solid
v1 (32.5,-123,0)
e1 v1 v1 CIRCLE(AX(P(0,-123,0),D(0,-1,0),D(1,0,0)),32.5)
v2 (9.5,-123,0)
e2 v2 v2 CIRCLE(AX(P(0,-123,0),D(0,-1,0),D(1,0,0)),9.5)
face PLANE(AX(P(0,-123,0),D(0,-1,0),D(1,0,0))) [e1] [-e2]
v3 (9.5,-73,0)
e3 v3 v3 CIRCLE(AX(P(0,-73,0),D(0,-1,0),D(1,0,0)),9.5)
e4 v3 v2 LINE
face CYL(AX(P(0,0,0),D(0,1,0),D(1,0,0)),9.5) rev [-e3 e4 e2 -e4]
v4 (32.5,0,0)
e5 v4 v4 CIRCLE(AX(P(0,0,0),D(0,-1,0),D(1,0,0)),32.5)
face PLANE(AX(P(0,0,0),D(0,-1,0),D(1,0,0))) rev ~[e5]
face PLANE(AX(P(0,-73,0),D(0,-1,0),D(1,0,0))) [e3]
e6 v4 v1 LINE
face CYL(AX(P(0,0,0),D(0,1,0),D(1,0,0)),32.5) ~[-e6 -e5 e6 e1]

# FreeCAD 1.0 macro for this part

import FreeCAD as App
import Part
import Sketcher

V = App.Vector
Q = App.Units.Quantity

doc = App.newDocument("Part")
params = doc.addObject("Spreadsheet::Sheet", "Params")
for row, (alias, value) in enumerate([
    ("sketch1_diameter", "65 mm"),
    ("sketch1_diameter2", "19 mm"),
    ("pad1_length", "123 mm"),
    ("sketch2_diameter", "19 mm"),
    ("pad2_length", "73 mm"),
], start=1):
    params.set(f"A{row}", alias)
    params.set(f"B{row}", "=" + value)
    params.setAlias(f"B{row}", alias)

body = doc.addObject("PartDesign::Body", "Body")

sketch1 = doc.addObject("Sketcher::SketchObject", "Sketch")
body.addObject(sketch1)
sketch1.AttachmentSupport = (doc.XZ_Plane, [""])
sketch1.MapMode = "FlatFace"
sketch1.addGeometry([
    Part.Circle(V(0, 0, 0), V(0, 0, 1), 32.5),
    Part.Circle(V(0, 0, 0), V(0, 0, 1), 9.5),
], False)
sketch1.addConstraint([
    Sketcher.Constraint("Coincident", 0, 3, -1, 1),
    Sketcher.Constraint("Coincident", 1, 3, -1, 1),
    Sketcher.Constraint("Diameter", 0, Q("65 mm")),
    Sketcher.Constraint("Diameter", 1, Q("19 mm")),
])
sketch1.setExpression("Constraints[2]", "Params.sketch1_diameter")
sketch1.setExpression("Constraints[3]", "Params.sketch1_diameter2")
pad1 = doc.addObject("PartDesign::Pad", "Pad")
body.addObject(pad1)
pad1.Profile = sketch1
pad1.setExpression("Length", "Params.pad1_length")

sketch2 = doc.addObject("Sketcher::SketchObject", "Sketch001")
body.addObject(sketch2)
sketch2.AttachmentSupport = (doc.XZ_Plane, [""])
sketch2.MapMode = "FlatFace"
sketch2.addGeometry(Part.Circle(V(0, 0, 0), V(0, 0, 1), 9.5), False)
sketch2.addConstraint([
    Sketcher.Constraint("Coincident", 0, 3, -1, 1),
    Sketcher.Constraint("Diameter", 0, Q("19 mm")),
])
sketch2.setExpression("Constraints[1]", "Params.sketch2_diameter")
pad2 = doc.addObject("PartDesign::Pad", "Pad001")
body.addObject(pad2)
pad2.Profile = sketch2
pad2.setExpression("Length", "Params.pad2_length")

doc.recompute()
